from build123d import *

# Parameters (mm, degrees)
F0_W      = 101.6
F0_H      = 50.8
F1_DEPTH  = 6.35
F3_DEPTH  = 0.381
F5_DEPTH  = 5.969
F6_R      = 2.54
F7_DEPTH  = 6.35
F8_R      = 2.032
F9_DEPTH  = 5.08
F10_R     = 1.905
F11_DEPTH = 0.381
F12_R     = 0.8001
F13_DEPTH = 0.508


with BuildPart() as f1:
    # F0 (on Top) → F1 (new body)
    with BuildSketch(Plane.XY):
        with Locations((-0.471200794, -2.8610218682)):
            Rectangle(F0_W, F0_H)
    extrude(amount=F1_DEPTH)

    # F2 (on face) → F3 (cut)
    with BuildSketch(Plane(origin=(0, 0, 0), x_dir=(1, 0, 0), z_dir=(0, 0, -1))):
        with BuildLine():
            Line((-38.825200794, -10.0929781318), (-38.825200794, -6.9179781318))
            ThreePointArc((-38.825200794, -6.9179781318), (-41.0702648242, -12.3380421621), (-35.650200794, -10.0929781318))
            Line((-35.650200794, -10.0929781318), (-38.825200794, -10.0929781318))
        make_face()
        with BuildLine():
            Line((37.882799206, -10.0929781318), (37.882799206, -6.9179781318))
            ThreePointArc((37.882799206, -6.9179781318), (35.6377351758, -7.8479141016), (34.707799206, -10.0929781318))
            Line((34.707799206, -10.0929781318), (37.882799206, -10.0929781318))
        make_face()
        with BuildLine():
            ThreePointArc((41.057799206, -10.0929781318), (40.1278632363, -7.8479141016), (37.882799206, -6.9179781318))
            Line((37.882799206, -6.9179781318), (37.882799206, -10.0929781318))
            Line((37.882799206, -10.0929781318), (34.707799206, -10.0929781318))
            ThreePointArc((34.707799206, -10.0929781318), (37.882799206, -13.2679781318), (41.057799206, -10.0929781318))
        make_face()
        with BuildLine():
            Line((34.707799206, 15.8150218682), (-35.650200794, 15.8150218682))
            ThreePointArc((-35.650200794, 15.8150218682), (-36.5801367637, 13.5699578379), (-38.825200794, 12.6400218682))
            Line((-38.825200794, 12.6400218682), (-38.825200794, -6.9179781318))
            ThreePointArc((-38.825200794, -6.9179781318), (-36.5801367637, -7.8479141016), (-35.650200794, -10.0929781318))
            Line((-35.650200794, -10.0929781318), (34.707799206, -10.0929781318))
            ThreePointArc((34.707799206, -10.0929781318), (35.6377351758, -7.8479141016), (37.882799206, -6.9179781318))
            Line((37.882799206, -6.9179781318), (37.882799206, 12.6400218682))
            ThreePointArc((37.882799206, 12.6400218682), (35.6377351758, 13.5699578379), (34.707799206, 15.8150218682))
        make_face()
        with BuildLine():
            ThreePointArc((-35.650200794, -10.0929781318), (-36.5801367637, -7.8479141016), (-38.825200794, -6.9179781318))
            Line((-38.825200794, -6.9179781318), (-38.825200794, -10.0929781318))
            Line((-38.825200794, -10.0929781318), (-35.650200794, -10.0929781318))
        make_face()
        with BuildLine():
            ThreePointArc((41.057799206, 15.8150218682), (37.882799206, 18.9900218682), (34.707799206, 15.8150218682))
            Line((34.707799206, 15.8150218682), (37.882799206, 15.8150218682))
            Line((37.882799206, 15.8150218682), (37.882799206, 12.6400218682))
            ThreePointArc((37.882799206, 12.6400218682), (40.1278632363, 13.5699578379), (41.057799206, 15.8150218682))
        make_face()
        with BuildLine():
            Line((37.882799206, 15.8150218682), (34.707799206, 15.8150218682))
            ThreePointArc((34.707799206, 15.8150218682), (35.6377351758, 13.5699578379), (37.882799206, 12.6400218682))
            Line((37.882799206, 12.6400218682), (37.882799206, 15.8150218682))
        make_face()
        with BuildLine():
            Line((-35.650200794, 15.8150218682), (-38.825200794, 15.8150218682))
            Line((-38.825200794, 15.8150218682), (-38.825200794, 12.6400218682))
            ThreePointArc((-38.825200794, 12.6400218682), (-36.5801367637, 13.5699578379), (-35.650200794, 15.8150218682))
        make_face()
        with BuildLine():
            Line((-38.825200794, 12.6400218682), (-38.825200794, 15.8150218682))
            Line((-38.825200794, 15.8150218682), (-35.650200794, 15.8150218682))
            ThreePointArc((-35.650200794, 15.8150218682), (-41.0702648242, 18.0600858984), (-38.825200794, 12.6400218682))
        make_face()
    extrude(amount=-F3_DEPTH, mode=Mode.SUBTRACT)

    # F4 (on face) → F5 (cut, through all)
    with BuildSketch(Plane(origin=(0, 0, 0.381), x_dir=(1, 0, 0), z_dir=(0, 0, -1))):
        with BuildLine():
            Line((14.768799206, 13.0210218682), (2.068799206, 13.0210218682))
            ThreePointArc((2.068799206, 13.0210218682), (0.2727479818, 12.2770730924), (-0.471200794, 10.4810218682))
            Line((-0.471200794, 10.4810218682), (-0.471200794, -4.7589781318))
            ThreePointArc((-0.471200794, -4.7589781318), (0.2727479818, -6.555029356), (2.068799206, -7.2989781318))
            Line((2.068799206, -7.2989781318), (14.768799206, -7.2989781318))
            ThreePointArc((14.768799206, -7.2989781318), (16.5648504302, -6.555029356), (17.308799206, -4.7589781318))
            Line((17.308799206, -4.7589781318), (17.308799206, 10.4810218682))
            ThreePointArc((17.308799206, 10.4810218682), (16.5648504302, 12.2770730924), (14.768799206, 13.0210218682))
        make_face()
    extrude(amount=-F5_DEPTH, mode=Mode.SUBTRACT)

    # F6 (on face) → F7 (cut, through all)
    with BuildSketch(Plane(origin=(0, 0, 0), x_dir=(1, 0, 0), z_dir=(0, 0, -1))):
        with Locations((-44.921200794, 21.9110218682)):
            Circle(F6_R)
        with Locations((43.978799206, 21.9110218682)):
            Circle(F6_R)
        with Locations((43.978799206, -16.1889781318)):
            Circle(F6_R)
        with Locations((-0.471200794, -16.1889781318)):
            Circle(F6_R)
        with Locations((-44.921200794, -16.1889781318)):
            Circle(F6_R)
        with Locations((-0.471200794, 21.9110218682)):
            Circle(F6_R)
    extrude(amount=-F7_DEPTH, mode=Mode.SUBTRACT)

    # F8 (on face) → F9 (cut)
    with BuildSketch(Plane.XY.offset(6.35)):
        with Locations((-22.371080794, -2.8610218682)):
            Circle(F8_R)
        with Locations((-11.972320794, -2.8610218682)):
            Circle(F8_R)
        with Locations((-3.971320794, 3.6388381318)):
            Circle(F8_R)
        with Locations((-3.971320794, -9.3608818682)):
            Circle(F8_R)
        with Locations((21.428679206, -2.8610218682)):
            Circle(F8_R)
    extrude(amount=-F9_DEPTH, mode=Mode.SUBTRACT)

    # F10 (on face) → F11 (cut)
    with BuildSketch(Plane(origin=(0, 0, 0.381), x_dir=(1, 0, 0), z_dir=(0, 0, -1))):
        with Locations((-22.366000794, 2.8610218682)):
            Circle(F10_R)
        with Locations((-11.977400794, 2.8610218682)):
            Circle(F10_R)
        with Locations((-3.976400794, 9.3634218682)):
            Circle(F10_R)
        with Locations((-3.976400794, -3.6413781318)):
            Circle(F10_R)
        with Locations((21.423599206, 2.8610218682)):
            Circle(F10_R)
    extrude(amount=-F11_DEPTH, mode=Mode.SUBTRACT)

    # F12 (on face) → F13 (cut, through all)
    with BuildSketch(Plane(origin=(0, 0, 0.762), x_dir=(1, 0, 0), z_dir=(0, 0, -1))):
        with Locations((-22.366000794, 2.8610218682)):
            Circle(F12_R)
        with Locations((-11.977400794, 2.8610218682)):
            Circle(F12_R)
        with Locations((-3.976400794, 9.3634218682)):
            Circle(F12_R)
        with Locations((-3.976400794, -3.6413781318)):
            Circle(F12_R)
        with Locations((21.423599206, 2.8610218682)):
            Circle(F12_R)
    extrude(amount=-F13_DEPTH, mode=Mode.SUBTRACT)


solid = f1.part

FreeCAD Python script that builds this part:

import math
import FreeCAD as App
import Part
import Sketcher
from FreeCAD import Vector
Q = App.Units.Quantity

doc = App.newDocument("Part")
body = doc.addObject("PartDesign::Body", "Body")

# Sketch on XY plane
sketch1 = body.newObject("Sketcher::SketchObject", "Sketch")
sketch1.AttachmentSupport = (doc.getObject("XY_Plane"), [""])
sketch1.MapMode = "FlatFace"
sketch1.addGeometry(Part.LineSegment(Vector(-51, 23, 0), Vector(-51, -28, 0)), False)
sketch1.addGeometry(Part.LineSegment(Vector(-51, -28, 0), Vector(50, -28, 0)), False)
sketch1.addGeometry(Part.LineSegment(Vector(50, -28, 0), Vector(50, 23, 0)), False)
sketch1.addGeometry(Part.LineSegment(Vector(50, 23, 0), Vector(-51, 23, 0)), False)
sketch1.addConstraint(Sketcher.Constraint("Coincident", 0, 2, 1, 1))
sketch1.addConstraint(Sketcher.Constraint("Coincident", 1, 2, 2, 1))
sketch1.addConstraint(Sketcher.Constraint("Coincident", 2, 2, 3, 1))
sketch1.addConstraint(Sketcher.Constraint("Coincident", 3, 2, 0, 1))
sketch1.addConstraint(Sketcher.Constraint("Vertical", 0))
sketch1.addConstraint(Sketcher.Constraint("Horizontal", 1))
sketch1.addConstraint(Sketcher.Constraint("Vertical", 2))
sketch1.addConstraint(Sketcher.Constraint("Horizontal", 3))
sketch1.addConstraint(Sketcher.Constraint("DistanceX", 1, 1, 1, 2, Q("4 in")))
sketch1.addConstraint(Sketcher.Constraint("DistanceY", 0, 2, 0, 1, Q("2 in")))
sketch1.addConstraint(Sketcher.Constraint("DistanceX", 0, 2, -1, 1, Q("51.271201 mm")))
sketch1.addConstraint(Sketcher.Constraint("DistanceY", 0, 2, -1, 1, Q("28.261022 mm")))
pad1 = body.newObject("PartDesign::Pad", "Pad")
pad1.Profile = sketch1
pad1.Length = Q("0.25 in")

# Sketch on XY plane
sketch2 = body.newObject("Sketcher::SketchObject", "Sketch001")
sketch2.AttachmentSupport = (doc.getObject("XY_Plane"), [""])
sketch2.MapMode = "FlatFace"
sketch2.addGeometry(Part.ArcOfCircle(Part.Circle(Vector(-38.8, 10.1, 0), Vector(0, 0, 1), 3.2), math.radians(0), math.radians(270)), False)
sketch2.addGeometry(Part.LineSegment(Vector(-35.7, 10.1, 0), Vector(34.7, 10.1, 0)), False)
sketch2.addGeometry(Part.ArcOfCircle(Part.Circle(Vector(37.9, 10.1, 0), Vector(0, 0, 1), 3.2), math.radians(0), math.radians(180)), False)
sketch2.addGeometry(Part.ArcOfCircle(Part.Circle(Vector(37.9, 10.1, 0), Vector(0, 0, 1), 3.2), math.radians(-90), math.radians(0)), False)
sketch2.addGeometry(Part.LineSegment(Vector(37.9, 6.9, 0), Vector(37.9, -12.6, 0)), False)
sketch2.addGeometry(Part.ArcOfCircle(Part.Circle(Vector(37.9, -15.8, 0), Vector(0, 0, 1), 3.2), math.radians(0), math.radians(90)), False)
sketch2.addGeometry(Part.ArcOfCircle(Part.Circle(Vector(37.9, -15.8, 0), Vector(0, 0, 1), 3.2), math.radians(180), math.radians(360)), False)
sketch2.addGeometry(Part.LineSegment(Vector(34.7, -15.8, 0), Vector(-35.7, -15.8, 0)), False)
sketch2.addGeometry(Part.ArcOfCircle(Part.Circle(Vector(-38.8, -15.8, 0), Vector(0, 0, 1), 3.2), math.radians(90), math.radians(360)), False)
sketch2.addGeometry(Part.LineSegment(Vector(-38.8, -12.6, 0), Vector(-38.8, 6.9, 0)), False)
sketch2.addConstraint(Sketcher.Constraint("Coincident", 0, 1, 1, 1))
sketch2.addConstraint(Sketcher.Constraint("Coincident", 1, 2, 2, 2))
sketch2.addConstraint(Sketcher.Constraint("Tangent", 2, 1, 3, 2))
sketch2.addConstraint(Sketcher.Constraint("Coincident", 3, 1, 4, 1))
sketch2.addConstraint(Sketcher.Constraint("Coincident", 4, 2, 5, 2))
sketch2.addConstraint(Sketcher.Constraint("Tangent", 5, 1, 6, 2))
sketch2.addConstraint(Sketcher.Constraint("Coincident", 6, 1, 7, 1))
sketch2.addConstraint(Sketcher.Constraint("Coincident", 7, 2, 8, 2))
sketch2.addConstraint(Sketcher.Constraint("Coincident", 8, 1, 9, 1))
sketch2.addConstraint(Sketcher.Constraint("Coincident", 9, 2, 0, 2))
sketch2.addConstraint(Sketcher.Constraint("Horizontal", 1))
sketch2.addConstraint(Sketcher.Constraint("Vertical", 4))
sketch2.addConstraint(Sketcher.Constraint("Horizontal", 7))
sketch2.addConstraint(Sketcher.Constraint("Vertical", 9))
sketch2.addConstraint(Sketcher.Constraint("Equal", 0, 2))
sketch2.addConstraint(Sketcher.Constraint("Equal", 2, 3))
sketch2.addConstraint(Sketcher.Constraint("Equal", 3, 5))
sketch2.addConstraint(Sketcher.Constraint("Equal", 5, 6))
sketch2.addConstraint(Sketcher.Constraint("Equal", 6, 8))
sketch2.addConstraint(Sketcher.Constraint("Horizontal", 0, 3, 2, 3))
sketch2.addConstraint(Sketcher.Constraint("Horizontal", 6, 3, 8, 3))
sketch2.addConstraint(Sketcher.Constraint("Horizontal", 3, 3, 0, 1))
sketch2.addConstraint(Sketcher.Constraint("Horizontal", 1, 2, 2, 1))
sketch2.addConstraint(Sketcher.Constraint("Horizontal", 8, 3, 5, 1))
sketch2.addConstraint(Sketcher.Constraint("Horizontal", 5, 1, 6, 1))
sketch2.addConstraint(Sketcher.Constraint("Vertical", 3, 3, 5, 3))
sketch2.addConstraint(Sketcher.Constraint("Vertical", 0, 3, 8, 3))
sketch2.addConstraint(Sketcher.Constraint("Vertical", 6, 3, 3, 1))
sketch2.addConstraint(Sketcher.Constraint("Vertical", 0, 3, 8, 1))
sketch2.addConstraint(Sketcher.Constraint("Radius", 0, Q("0.125 in")))
sketch2.addConstraint(Sketcher.Constraint("DistanceX", 1, 1, 1, 2, Q("2.77 in")))
sketch2.addConstraint(Sketcher.Constraint("DistanceY", 4, 2, 4, 1, Q("0.77 in")))
sketch2.addConstraint(Sketcher.Constraint("DistanceX", 0, 3, -1, 1, Q("38.825201 mm")))
sketch2.addConstraint(Sketcher.Constraint("DistanceY", -1, 1, 0, 3, Q("10.092978 mm")))
pocket1 = body.newObject("PartDesign::Pocket", "Pocket")
pocket1.Profile = sketch2
pocket1.Length = Q("0.015 in")
pocket1.Reversed = True

# Sketch on XY plane
sketch3 = body.newObject("Sketcher::SketchObject", "Sketch002")
sketch3.AttachmentSupport = (doc.getObject("XY_Plane"), [""])
sketch3.MapMode = "FlatFace"
sketch3.AttachmentOffset = App.Placement(Vector(0, 0, 0.015 * 25.4), App.Rotation())
sketch3.addGeometry(Part.LineSegment(Vector(14.8, -13, 0), Vector(2.1, -13, 0)), False)
sketch3.addGeometry(Part.ArcOfCircle(Part.Circle(Vector(2.1, -10.5, 0), Vector(0, 0, 1), 2.5), math.radians(180), math.radians(270)), False)
sketch3.addGeometry(Part.LineSegment(Vector(-0.5, -10.5, 0), Vector(-0.5, 4.8, 0)), False)
sketch3.addGeometry(Part.ArcOfCircle(Part.Circle(Vector(2.1, 4.8, 0), Vector(0, 0, 1), 2.5), math.radians(90), math.radians(180)), False)
sketch3.addGeometry(Part.LineSegment(Vector(2.1, 7.3, 0), Vector(14.8, 7.3, 0)), False)
sketch3.addGeometry(Part.ArcOfCircle(Part.Circle(Vector(14.8, 4.8, 0), Vector(0, 0, 1), 2.5), math.radians(0), math.radians(90)), False)
sketch3.addGeometry(Part.LineSegment(Vector(17.3, 4.8, 0), Vector(17.3, -10.5, 0)), False)
sketch3.addGeometry(Part.ArcOfCircle(Part.Circle(Vector(14.8, -10.5, 0), Vector(0, 0, 1), 2.5), math.radians(-90), math.radians(0)), False)
sketch3.addConstraint(Sketcher.Constraint("Tangent", 0, 2, 1, 2))
sketch3.addConstraint(Sketcher.Constraint("Tangent", 1, 1, 2, 1))
sketch3.addConstraint(Sketcher.Constraint("Tangent", 2, 2, 3, 2))
sketch3.addConstraint(Sketcher.Constraint("Tangent", 3, 1, 4, 1))
sketch3.addConstraint(Sketcher.Constraint("Tangent", 4, 2, 5, 2))
sketch3.addConstraint(Sketcher.Constraint("Tangent", 5, 1, 6, 1))
sketch3.addConstraint(Sketcher.Constraint("Tangent", 6, 2, 7, 2))
sketch3.addConstraint(Sketcher.Constraint("Tangent", 7, 1, 0, 1))
sketch3.addConstraint(Sketcher.Constraint("Horizontal", 0))
sketch3.addConstraint(Sketcher.Constraint("Vertical", 2))
sketch3.addConstraint(Sketcher.Constraint("Horizontal", 4))
sketch3.addConstraint(Sketcher.Constraint("Vertical", 6))
sketch3.addConstraint(Sketcher.Constraint("Equal", 1, 3))
sketch3.addConstraint(Sketcher.Constraint("Equal", 3, 5))
sketch3.addConstraint(Sketcher.Constraint("Equal", 5, 7))
sketch3.addConstraint(Sketcher.Constraint("Radius", 1, Q("0.1 in")))
sketch3.addConstraint(Sketcher.Constraint("DistanceX", 0, 2, 0, 1, Q("0.5 in")))
sketch3.addConstraint(Sketcher.Constraint("DistanceY", 2, 1, 2, 2, Q("0.6 in")))
sketch3.addConstraint(Sketcher.Constraint("DistanceX", -1, 1, 1, 3, Q("2.068799 mm")))
sketch3.addConstraint(Sketcher.Constraint("DistanceY", 1, 3, -1, 1, Q("10.481022 mm")))
pocket2 = body.newObject("PartDesign::Pocket", "Pocket001")
pocket2.Profile = sketch3
pocket2.Type = "ThroughAll"
pocket2.Reversed = True

# Sketch on XY plane
sketch4 = body.newObject("Sketcher::SketchObject", "Sketch003")
sketch4.AttachmentSupport = (doc.getObject("XY_Plane"), [""])
sketch4.MapMode = "FlatFace"
sketch4.addGeometry(Part.Circle(Vector(-44.9, -21.9, 0), Vector(0, 0, 1), 2.5), False)
sketch4.addGeometry(Part.Circle(Vector(44, -21.9, 0), Vector(0, 0, 1), 2.5), False)
sketch4.addGeometry(Part.Circle(Vector(44, 16.2, 0), Vector(0, 0, 1), 2.5), False)
sketch4.addGeometry(Part.Circle(Vector(-0.5, 16.2, 0), Vector(0, 0, 1), 2.5), False)
sketch4.addGeometry(Part.Circle(Vector(-44.9, 16.2, 0), Vector(0, 0, 1), 2.5), False)
sketch4.addGeometry(Part.Circle(Vector(-0.5, -21.9, 0), Vector(0, 0, 1), 2.5), False)
sketch4.addConstraint(Sketcher.Constraint("Equal", 0, 1))
sketch4.addConstraint(Sketcher.Constraint("Equal", 1, 2))
sketch4.addConstraint(Sketcher.Constraint("Equal", 2, 3))
sketch4.addConstraint(Sketcher.Constraint("Equal", 3, 4))
sketch4.addConstraint(Sketcher.Constraint("Equal", 4, 5))
sketch4.addConstraint(Sketcher.Constraint("Horizontal", 0, 3, 1, 3))
sketch4.addConstraint(Sketcher.Constraint("Horizontal", 2, 3, 3, 3))
sketch4.addConstraint(Sketcher.Constraint("Horizontal", 3, 3, 4, 3))
sketch4.addConstraint(Sketcher.Constraint("Horizontal", 1, 3, 5, 3))
sketch4.addConstraint(Sketcher.Constraint("Vertical", 1, 3, 2, 3))
sketch4.addConstraint(Sketcher.Constraint("Vertical", 0, 3, 4, 3))
sketch4.addConstraint(Sketcher.Constraint("Vertical", 3, 3, 5, 3))
sketch4.addConstraint(Sketcher.Constraint("Diameter", 0, Q("0.2 in")))
sketch4.addConstraint(Sketcher.Constraint("DistanceX", 0, 3, 1, 3, Q("3.5 in")))
sketch4.addConstraint(Sketcher.Constraint("DistanceY", 1, 3, 2, 3, Q("1.5 in")))
sketch4.addConstraint(Sketcher.Constraint("DistanceX", 3, 3, 2, 3, Q("1.75 in")))
sketch4.addConstraint(Sketcher.Constraint("DistanceX", 0, 3, -1, 1, Q("44.921201 mm")))
sketch4.addConstraint(Sketcher.Constraint("DistanceY", 0, 3, -1, 1, Q("21.911022 mm")))
pocket3 = body.newObject("PartDesign::Pocket", "Pocket002")
pocket3.Profile = sketch4
pocket3.Type = "ThroughAll"
pocket3.Reversed = True

# Sketch on XY plane
sketch5 = body.newObject("Sketcher::SketchObject", "Sketch004")
sketch5.AttachmentSupport = (doc.getObject("XY_Plane"), [""])
sketch5.MapMode = "FlatFace"
sketch5.AttachmentOffset = App.Placement(Vector(0, 0, 0.25 * 25.4), App.Rotation())
sketch5.addGeometry(Part.Circle(Vector(-22.4, -2.9, 0), Vector(0, 0, 1), 2), False)
sketch5.addGeometry(Part.Circle(Vector(-12, -2.9, 0), Vector(0, 0, 1), 2), False)
sketch5.addGeometry(Part.Circle(Vector(-4, 3.6, 0), Vector(0, 0, 1), 2), False)
sketch5.addGeometry(Part.Circle(Vector(-4, -9.4, 0), Vector(0, 0, 1), 2), False)
sketch5.addGeometry(Part.Circle(Vector(21.4, -2.9, 0), Vector(0, 0, 1), 2), False)
sketch5.addConstraint(Sketcher.Constraint("Equal", 0, 1))
sketch5.addConstraint(Sketcher.Constraint("Equal", 1, 2))
sketch5.addConstraint(Sketcher.Constraint("Equal", 2, 3))
sketch5.addConstraint(Sketcher.Constraint("Equal", 3, 4))
sketch5.addConstraint(Sketcher.Constraint("Horizontal", 0, 3, 1, 3))
sketch5.addConstraint(Sketcher.Constraint("Horizontal", 1, 3, 4, 3))
sketch5.addConstraint(Sketcher.Constraint("Vertical", 2, 3, 3, 3))
sketch5.addConstraint(Sketcher.Constraint("Diameter", 0, Q("0.16 in")))
sketch5.addConstraint(Sketcher.Constraint("DistanceX", 2, 3, 4, 3, Q("1 in")))
sketch5.addConstraint(Sketcher.Constraint("DistanceX", 1, 3, 2, 3, Q("0.315 in")))
sketch5.addConstraint(Sketcher.Constraint("DistanceX", 0, 3, 1, 3, Q("0.4094 in")))
sketch5.addConstraint(Sketcher.Constraint("DistanceY", 1, 3, 2, 3, Q("0.2559 in")))
sketch5.addConstraint(Sketcher.Constraint("DistanceY", 3, 3, 1, 3, Q("0.2559 in")))
sketch5.addConstraint(Sketcher.Constraint("DistanceX", 0, 3, -1, 1, Q("22.371081 mm")))
sketch5.addConstraint(Sketcher.Constraint("DistanceY", 0, 3, -1, 1, Q("2.861022 mm")))
pocket4 = body.newObject("PartDesign::Pocket", "Pocket003")
pocket4.Profile = sketch5
pocket4.Length = Q("0.2 in")

# Sketch on XY plane
sketch6 = body.newObject("Sketcher::SketchObject", "Sketch005")
sketch6.AttachmentSupport = (doc.getObject("XY_Plane"), [""])
sketch6.MapMode = "FlatFace"
sketch6.AttachmentOffset = App.Placement(Vector(0, 0, 0.015 * 25.4), App.Rotation())
sketch6.addGeometry(Part.Circle(Vector(-22.4, -2.9, 0), Vector(0, 0, 1), 1.9), False)
sketch6.addGeometry(Part.Circle(Vector(-12, -2.9, 0), Vector(0, 0, 1), 1.9), False)
sketch6.addGeometry(Part.Circle(Vector(-4, -9.4, 0), Vector(0, 0, 1), 1.9), False)
sketch6.addGeometry(Part.Circle(Vector(-4, 3.6, 0), Vector(0, 0, 1), 1.9), False)
sketch6.addGeometry(Part.Circle(Vector(21.4, -2.9, 0), Vector(0, 0, 1), 1.9), False)
sketch6.addConstraint(Sketcher.Constraint("Equal", 0, 1))
sketch6.addConstraint(Sketcher.Constraint("Equal", 1, 2))
sketch6.addConstraint(Sketcher.Constraint("Equal", 2, 3))
sketch6.addConstraint(Sketcher.Constraint("Equal", 3, 4))
sketch6.addConstraint(Sketcher.Constraint("Horizontal", 0, 3, 1, 3))
sketch6.addConstraint(Sketcher.Constraint("Horizontal", 1, 3, 4, 3))
sketch6.addConstraint(Sketcher.Constraint("Vertical", 2, 3, 3, 3))
sketch6.addConstraint(Sketcher.Constraint("Diameter", 0, Q("0.15 in")))
sketch6.addConstraint(Sketcher.Constraint("DistanceX", 2, 3, 4, 3, Q("1 in")))
sketch6.addConstraint(Sketcher.Constraint("DistanceX", 0, 3, 1, 3, Q("0.409 in")))
sketch6.addConstraint(Sketcher.Constraint("DistanceX", 1, 3, 2, 3, Q("0.315 in")))
sketch6.addConstraint(Sketcher.Constraint("DistanceY", 2, 3, 1, 3, Q("0.256 in")))
sketch6.addConstraint(Sketcher.Constraint("DistanceY", 1, 3, 3, 3, Q("0.256 in")))
sketch6.addConstraint(Sketcher.Constraint("DistanceX", 0, 3, -1, 1, Q("22.366001 mm")))
sketch6.addConstraint(Sketcher.Constraint("DistanceY", 0, 3, -1, 1, Q("2.861022 mm")))
pocket5 = body.newObject("PartDesign::Pocket", "Pocket004")
pocket5.Profile = sketch6
pocket5.Length = Q("0.015 in")
pocket5.Reversed = True

# Sketch on XY plane
sketch7 = body.newObject("Sketcher::SketchObject", "Sketch006")
sketch7.AttachmentSupport = (doc.getObject("XY_Plane"), [""])
sketch7.MapMode = "FlatFace"
sketch7.AttachmentOffset = App.Placement(Vector(0, 0, 0.03 * 25.4), App.Rotation())
sketch7.addGeometry(Part.Circle(Vector(-22.4, -2.9, 0), Vector(0, 0, 1), 0.8), False)
sketch7.addGeometry(Part.Circle(Vector(-12, -2.9, 0), Vector(0, 0, 1), 0.8), False)
sketch7.addGeometry(Part.Circle(Vector(-4, -9.4, 0), Vector(0, 0, 1), 0.8), False)
sketch7.addGeometry(Part.Circle(Vector(-4, 3.6, 0), Vector(0, 0, 1), 0.8), False)
sketch7.addGeometry(Part.Circle(Vector(21.4, -2.9, 0), Vector(0, 0, 1), 0.8), False)
sketch7.addConstraint(Sketcher.Constraint("Equal", 0, 1))
sketch7.addConstraint(Sketcher.Constraint("Equal", 1, 2))
sketch7.addConstraint(Sketcher.Constraint("Equal", 2, 3))
sketch7.addConstraint(Sketcher.Constraint("Equal", 3, 4))
sketch7.addConstraint(Sketcher.Constraint("Horizontal", 0, 3, 1, 3))
sketch7.addConstraint(Sketcher.Constraint("Horizontal", 1, 3, 4, 3))
sketch7.addConstraint(Sketcher.Constraint("Vertical", 2, 3, 3, 3))
sketch7.addConstraint(Sketcher.Constraint("Diameter", 0, Q("0.063 in")))
sketch7.addConstraint(Sketcher.Constraint("DistanceX", 2, 3, 4, 3, Q("1 in")))
sketch7.addConstraint(Sketcher.Constraint("DistanceX", 0, 3, 1, 3, Q("0.409 in")))
sketch7.addConstraint(Sketcher.Constraint("DistanceX", 1, 3, 2, 3, Q("0.315 in")))
sketch7.addConstraint(Sketcher.Constraint("DistanceY", 2, 3, 1, 3, Q("0.256 in")))
sketch7.addConstraint(Sketcher.Constraint("DistanceY", 1, 3, 3, 3, Q("0.256 in")))
sketch7.addConstraint(Sketcher.Constraint("DistanceX", 0, 3, -1, 1, Q("22.366001 mm")))
sketch7.addConstraint(Sketcher.Constraint("DistanceY", 0, 3, -1, 1, Q("2.861022 mm")))
pocket6 = body.newObject("PartDesign::Pocket", "Pocket005")
pocket6.Profile = sketch7
pocket6.Type = "ThroughAll"
pocket6.Reversed = True

doc.recompute()
